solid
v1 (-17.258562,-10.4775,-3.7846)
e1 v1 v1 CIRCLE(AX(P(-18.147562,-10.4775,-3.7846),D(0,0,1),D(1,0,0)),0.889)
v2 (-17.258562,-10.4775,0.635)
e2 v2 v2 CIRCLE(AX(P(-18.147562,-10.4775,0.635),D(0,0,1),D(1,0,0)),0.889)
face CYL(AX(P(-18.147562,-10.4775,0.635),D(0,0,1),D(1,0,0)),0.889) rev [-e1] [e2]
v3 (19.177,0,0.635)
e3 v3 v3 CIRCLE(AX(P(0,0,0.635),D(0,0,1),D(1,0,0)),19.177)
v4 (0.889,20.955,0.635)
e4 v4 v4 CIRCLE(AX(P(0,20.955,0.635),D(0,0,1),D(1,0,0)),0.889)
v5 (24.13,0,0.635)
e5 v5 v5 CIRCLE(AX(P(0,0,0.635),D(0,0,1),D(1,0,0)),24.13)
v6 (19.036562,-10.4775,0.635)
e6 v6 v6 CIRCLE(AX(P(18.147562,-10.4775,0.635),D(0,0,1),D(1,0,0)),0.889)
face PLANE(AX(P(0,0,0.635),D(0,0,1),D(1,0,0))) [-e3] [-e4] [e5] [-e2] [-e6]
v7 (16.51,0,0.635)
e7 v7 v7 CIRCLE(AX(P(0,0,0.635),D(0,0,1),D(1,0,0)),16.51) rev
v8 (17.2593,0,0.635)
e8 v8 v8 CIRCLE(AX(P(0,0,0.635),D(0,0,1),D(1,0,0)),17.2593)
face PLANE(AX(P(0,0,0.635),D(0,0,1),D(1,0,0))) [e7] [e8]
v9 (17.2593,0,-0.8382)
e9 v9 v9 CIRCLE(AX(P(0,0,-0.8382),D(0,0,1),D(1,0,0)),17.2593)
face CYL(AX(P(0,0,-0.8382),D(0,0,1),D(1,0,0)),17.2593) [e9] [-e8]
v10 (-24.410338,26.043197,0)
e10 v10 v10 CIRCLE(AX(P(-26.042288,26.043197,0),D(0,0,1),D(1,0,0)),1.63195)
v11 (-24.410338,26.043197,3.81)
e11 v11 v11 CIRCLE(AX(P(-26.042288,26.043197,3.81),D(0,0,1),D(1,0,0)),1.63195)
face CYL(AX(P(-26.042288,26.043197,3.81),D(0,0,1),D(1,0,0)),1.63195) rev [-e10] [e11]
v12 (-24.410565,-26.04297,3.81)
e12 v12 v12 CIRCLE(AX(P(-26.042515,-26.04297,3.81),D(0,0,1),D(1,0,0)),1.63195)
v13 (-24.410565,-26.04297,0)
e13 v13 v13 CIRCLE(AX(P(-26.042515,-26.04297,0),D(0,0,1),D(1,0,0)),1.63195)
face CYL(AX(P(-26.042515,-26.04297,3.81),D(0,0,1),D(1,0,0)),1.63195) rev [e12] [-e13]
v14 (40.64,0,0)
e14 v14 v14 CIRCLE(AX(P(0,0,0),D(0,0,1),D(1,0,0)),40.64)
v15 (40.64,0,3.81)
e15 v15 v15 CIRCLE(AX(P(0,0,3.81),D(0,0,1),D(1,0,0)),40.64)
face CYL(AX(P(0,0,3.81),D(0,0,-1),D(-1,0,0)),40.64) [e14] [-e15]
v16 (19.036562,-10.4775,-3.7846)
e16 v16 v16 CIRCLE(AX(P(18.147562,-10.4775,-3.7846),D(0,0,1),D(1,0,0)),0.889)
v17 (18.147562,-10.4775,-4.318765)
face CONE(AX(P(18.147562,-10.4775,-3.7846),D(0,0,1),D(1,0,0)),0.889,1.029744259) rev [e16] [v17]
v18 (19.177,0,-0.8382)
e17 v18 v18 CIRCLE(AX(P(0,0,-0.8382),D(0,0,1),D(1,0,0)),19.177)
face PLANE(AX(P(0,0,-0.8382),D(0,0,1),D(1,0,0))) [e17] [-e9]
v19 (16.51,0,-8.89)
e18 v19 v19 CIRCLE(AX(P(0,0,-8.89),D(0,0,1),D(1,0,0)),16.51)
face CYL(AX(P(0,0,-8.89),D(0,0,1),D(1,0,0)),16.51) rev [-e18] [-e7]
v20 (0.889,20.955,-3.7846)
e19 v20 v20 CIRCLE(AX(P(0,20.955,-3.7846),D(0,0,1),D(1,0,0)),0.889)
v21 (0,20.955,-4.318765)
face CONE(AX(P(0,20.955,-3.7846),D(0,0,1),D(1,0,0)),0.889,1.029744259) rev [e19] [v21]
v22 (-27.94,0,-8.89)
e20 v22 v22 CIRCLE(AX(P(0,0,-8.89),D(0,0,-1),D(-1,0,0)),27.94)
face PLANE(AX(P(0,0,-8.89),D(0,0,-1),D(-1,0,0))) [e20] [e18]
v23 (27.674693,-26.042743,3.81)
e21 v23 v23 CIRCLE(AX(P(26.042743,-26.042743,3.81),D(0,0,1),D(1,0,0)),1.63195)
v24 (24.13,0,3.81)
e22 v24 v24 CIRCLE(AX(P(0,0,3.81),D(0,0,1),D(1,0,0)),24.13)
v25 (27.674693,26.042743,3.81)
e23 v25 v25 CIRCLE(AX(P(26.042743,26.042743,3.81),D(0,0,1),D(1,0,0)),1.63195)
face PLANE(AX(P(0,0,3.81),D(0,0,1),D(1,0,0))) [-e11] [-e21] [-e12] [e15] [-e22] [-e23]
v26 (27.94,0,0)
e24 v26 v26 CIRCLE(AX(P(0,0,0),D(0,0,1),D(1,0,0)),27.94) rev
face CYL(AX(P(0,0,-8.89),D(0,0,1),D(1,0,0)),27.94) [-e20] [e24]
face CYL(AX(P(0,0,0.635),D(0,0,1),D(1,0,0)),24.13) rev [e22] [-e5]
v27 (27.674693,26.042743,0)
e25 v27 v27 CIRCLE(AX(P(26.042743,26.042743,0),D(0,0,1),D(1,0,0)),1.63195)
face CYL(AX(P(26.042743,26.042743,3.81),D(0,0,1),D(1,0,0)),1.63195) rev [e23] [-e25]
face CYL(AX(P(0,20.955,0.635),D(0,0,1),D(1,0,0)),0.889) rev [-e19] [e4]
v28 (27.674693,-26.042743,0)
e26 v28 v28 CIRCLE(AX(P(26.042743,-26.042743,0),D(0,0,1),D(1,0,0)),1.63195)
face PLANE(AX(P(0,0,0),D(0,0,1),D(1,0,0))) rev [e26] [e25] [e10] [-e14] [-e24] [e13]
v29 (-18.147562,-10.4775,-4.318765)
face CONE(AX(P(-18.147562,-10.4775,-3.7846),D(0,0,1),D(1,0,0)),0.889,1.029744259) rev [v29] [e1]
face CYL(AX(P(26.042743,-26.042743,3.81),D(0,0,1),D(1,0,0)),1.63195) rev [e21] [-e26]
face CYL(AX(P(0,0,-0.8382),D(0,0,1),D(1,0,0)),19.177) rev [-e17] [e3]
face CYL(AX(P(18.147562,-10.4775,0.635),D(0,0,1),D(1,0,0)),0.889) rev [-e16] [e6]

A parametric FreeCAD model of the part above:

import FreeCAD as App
import Part
import Sketcher
Q = App.Units.Quantity

doc = App.newDocument("Part")
body = doc.addObject("PartDesign::Body", "Body")

# Sketch on XY plane
sketch1 = doc.addObject("Sketcher::SketchObject", "Sketch")
body.addObject(sketch1)
sketch1.AttachmentSupport = (doc.XY_Plane, [""])
sketch1.MapMode = "FlatFace"
sketch1.addGeometry(Part.Circle(App.Vector(0, 0, 0), App.Vector(0, 0, 1), 40.64), False)
sketch1.addConstraint(Sketcher.Constraint("Coincident", 0, 3, -1, 1))
sketch1.addConstraint(Sketcher.Constraint("Diameter", 0, Q("3.2 in")))
pad1 = doc.addObject("PartDesign::Pad", "Pad")
body.addObject(pad1)
pad1.Profile = sketch1
pad1.Length = Q("0.15 in")

# Sketch on XY plane
sketch2 = doc.addObject("Sketcher::SketchObject", "Sketch001")
body.addObject(sketch2)
sketch2.AttachmentSupport = (doc.XY_Plane, [""])
sketch2.MapMode = "FlatFace"
sketch2.AttachmentOffset = App.Placement(App.Vector(0, 0, 0.15 * 25.4), App.Rotation())
sketch2.addGeometry(Part.Circle(App.Vector(26.042743, 26.042743, 0), App.Vector(0, 0, 1), 1.63195), False)
sketch2.addGeometry(Part.Circle(App.Vector(26.042743, -26.042743, 0), App.Vector(0, 0, 1), 1.63195), False)
sketch2.addGeometry(Part.Circle(App.Vector(-26.042288, 26.043197, 0), App.Vector(0, 0, 1), 1.63195), False)
sketch2.addGeometry(Part.Circle(App.Vector(-26.042515, -26.04297, 0), App.Vector(0, 0, 1), 1.63195), False)
sketch2.addConstraint(Sketcher.Constraint("Equal", 0, 1))
sketch2.addConstraint(Sketcher.Constraint("Equal", 1, 2))
sketch2.addConstraint(Sketcher.Constraint("Equal", 2, 3))
sketch2.addConstraint(Sketcher.Constraint("Symmetric", 0, 3, 1, 3, -1))
sketch2.addConstraint(Sketcher.Constraint("Diameter", 0, Q("0.1285 in")))
sketch2.addConstraint(Sketcher.Constraint("DistanceX", 2, 3, -1, 1, 26.042288))
sketch2.addConstraint(Sketcher.Constraint("DistanceY", 3, 3, -1, 1, 26.04297))
sketch2.addConstraint(Sketcher.Constraint("DistanceX", 2, 3, 0, 3, 52.085031))
sketch2.addConstraint(Sketcher.Constraint("DistanceY", 1, 3, 2, 3, 52.08594))
sketch2.addConstraint(Sketcher.Constraint("DistanceX", 3, 3, 1, 3, 52.085258))
sketch2.addConstraint(Sketcher.Constraint("DistanceY", -1, 1, 0, 3, 26.042743))
doc.recompute()
hole = doc.addObject("PartDesign::Hole", "Hole")
body.addObject(hole)
hole.Profile = sketch2
hole.ThreadType = "None"
hole.Diameter = Q("0.1285 in")
hole.DepthType = "ThroughAll"

# Sketch on XY plane
sketch3 = doc.addObject("Sketcher::SketchObject", "Sketch002")
body.addObject(sketch3)
sketch3.AttachmentSupport = (doc.XY_Plane, [""])
sketch3.MapMode = "FlatFace"
sketch3.addGeometry(Part.Circle(App.Vector(0, 0, 0), App.Vector(0, 0, 1), 27.94), False)
sketch3.addConstraint(Sketcher.Constraint("Coincident", 0, 3, -1, 1))
sketch3.addConstraint(Sketcher.Constraint("Diameter", 0, Q("2.2 in")))
pad2 = doc.addObject("PartDesign::Pad", "Pad001")
body.addObject(pad2)
pad2.Profile = sketch3
pad2.Length = Q("0.35 in")
pad2.Reversed = True

# Sketch on XY plane
sketch4 = doc.addObject("Sketcher::SketchObject", "Sketch003")
body.addObject(sketch4)
sketch4.AttachmentSupport = (doc.XY_Plane, [""])
sketch4.MapMode = "FlatFace"
sketch4.AttachmentOffset = App.Placement(App.Vector(0, 0, 0.15 * 25.4), App.Rotation())
sketch4.addGeometry(Part.Circle(App.Vector(0, 0, 0), App.Vector(0, 0, 1), 16.51), False)
sketch4.addConstraint(Sketcher.Constraint("Coincident", 0, 3, -1, 1))
sketch4.addConstraint(Sketcher.Constraint("Diameter", 0, Q("1.3 in")))
pocket1 = doc.addObject("PartDesign::Pocket", "Pocket")
body.addObject(pocket1)
pocket1.Profile = sketch4
pocket1.Type = "ThroughAll"

# Sketch on XY plane
sketch5 = doc.addObject("Sketcher::SketchObject", "Sketch004")
body.addObject(sketch5)
sketch5.AttachmentSupport = (doc.XY_Plane, [""])
sketch5.MapMode = "FlatFace"
sketch5.AttachmentOffset = App.Placement(App.Vector(0, 0, 0.15 * 25.4), App.Rotation())
sketch5.addGeometry(Part.Circle(App.Vector(0, 0, 0), App.Vector(0, 0, 1), 24.13), False)
sketch5.addConstraint(Sketcher.Constraint("Coincident", 0, 3, -1, 1))
sketch5.addConstraint(Sketcher.Constraint("Diameter", 0, Q("1.9 in")))
pocket2 = doc.addObject("PartDesign::Pocket", "Pocket001")
body.addObject(pocket2)
pocket2.Profile = sketch5
pocket2.Length = Q("0.125 in")

# Sketch on YZ plane
sketch6 = doc.addObject("Sketcher::SketchObject", "Sketch005")
body.addObject(sketch6)
sketch6.AttachmentSupport = (doc.YZ_Plane, [""])
sketch6.MapMode = "FlatFace"
sketch6.addGeometry(Part.LineSegment(App.Vector(20.955, -4.318765, 0), App.Vector(20.955, 0.635, 0)), False)
sketch6.addGeometry(Part.LineSegment(App.Vector(20.955, 0.635, 0), App.Vector(20.066, 0.635, 0)), False)
sketch6.addGeometry(Part.LineSegment(App.Vector(20.066, 0.635, 0), App.Vector(20.066, -3.7846, 0)), False)
sketch6.addGeometry(Part.LineSegment(App.Vector(20.066, -3.7846, 0), App.Vector(20.955, -4.318765, 0)), False)
sketch6.addGeometry(Part.LineSegment(App.Vector(20.955, 0.635, 0), App.Vector(20.955, -4.318765, 0)), True)  # axis
sketch6.addConstraint(Sketcher.Constraint("Coincident", 0, 2, 1, 1))
sketch6.addConstraint(Sketcher.Constraint("Coincident", 1, 2, 2, 1))
sketch6.addConstraint(Sketcher.Constraint("Coincident", 2, 2, 3, 1))
sketch6.addConstraint(Sketcher.Constraint("Coincident", 3, 2, 0, 1))
sketch6.addConstraint(Sketcher.Constraint("Vertical", 0))
sketch6.addConstraint(Sketcher.Constraint("Horizontal", 1))
sketch6.addConstraint(Sketcher.Constraint("Vertical", 2))
sketch6.addConstraint(Sketcher.Constraint("Vertical", 4))
sketch6.addConstraint(Sketcher.Constraint("Coincident", 4, 1, 0, 2))
sketch6.addConstraint(Sketcher.Constraint("Equal", 0, 4))
sketch6.addConstraint(Sketcher.Constraint("Angle", 3, Q("-31 deg")))
sketch6.addConstraint(Sketcher.Constraint("DistanceX", 1, 2, 1, 1, Q("0.035 in")))
sketch6.addConstraint(Sketcher.Constraint("DistanceY", 2, 2, 2, 1, Q("0.174 in")))
sketch6.addConstraint(Sketcher.Constraint("DistanceX", -1, 1, 1, 2, Q("0.79 in")))
sketch6.addConstraint(Sketcher.Constraint("DistanceY", -1, 1, 0, 2, Q("0.025 in")))
groove = doc.addObject("PartDesign::Groove", "Groove")
body.addObject(groove)
groove.Profile = sketch6
groove.ReferenceAxis = (sketch6, ["Axis0"])
groove.Angle = 360
doc.recompute()

polarpattern = doc.addObject("PartDesign::PolarPattern", "PolarPattern")
body.addObject(polarpattern)
polarpattern.Originals = [groove]
polarpattern.Axis = (doc.Z_Axis, [""])
polarpattern.Angle = 360
polarpattern.Occurrences = 3
body.Tip = polarpattern

# Sketch on XY plane
sketch7 = doc.addObject("Sketcher::SketchObject", "Sketch006")
body.addObject(sketch7)
sketch7.AttachmentSupport = (doc.XY_Plane, [""])
sketch7.MapMode = "FlatFace"
sketch7.AttachmentOffset = App.Placement(App.Vector(0, 0, 0.025 * 25.4), App.Rotation())
sketch7.addGeometry(Part.Circle(App.Vector(0, 0, 0), App.Vector(0, 0, 1), 19.177), False)
sketch7.addGeometry(Part.Circle(App.Vector(0, 0, 0), App.Vector(0, 0, 1), 17.2593), False)
sketch7.addConstraint(Sketcher.Constraint("Coincident", 0, 3, -1, 1))
sketch7.addConstraint(Sketcher.Constraint("Coincident", 1, 3, -1, 1))
sketch7.addConstraint(Sketcher.Constraint("Diameter", 0, Q("1.51 in")))
sketch7.addConstraint(Sketcher.Constraint("Diameter", 1, Q("1.359 in")))
pocket3 = doc.addObject("PartDesign::Pocket", "Pocket002")
body.addObject(pocket3)
pocket3.Profile = sketch7
pocket3.Length = Q("0.058 in")

doc.recompute()
